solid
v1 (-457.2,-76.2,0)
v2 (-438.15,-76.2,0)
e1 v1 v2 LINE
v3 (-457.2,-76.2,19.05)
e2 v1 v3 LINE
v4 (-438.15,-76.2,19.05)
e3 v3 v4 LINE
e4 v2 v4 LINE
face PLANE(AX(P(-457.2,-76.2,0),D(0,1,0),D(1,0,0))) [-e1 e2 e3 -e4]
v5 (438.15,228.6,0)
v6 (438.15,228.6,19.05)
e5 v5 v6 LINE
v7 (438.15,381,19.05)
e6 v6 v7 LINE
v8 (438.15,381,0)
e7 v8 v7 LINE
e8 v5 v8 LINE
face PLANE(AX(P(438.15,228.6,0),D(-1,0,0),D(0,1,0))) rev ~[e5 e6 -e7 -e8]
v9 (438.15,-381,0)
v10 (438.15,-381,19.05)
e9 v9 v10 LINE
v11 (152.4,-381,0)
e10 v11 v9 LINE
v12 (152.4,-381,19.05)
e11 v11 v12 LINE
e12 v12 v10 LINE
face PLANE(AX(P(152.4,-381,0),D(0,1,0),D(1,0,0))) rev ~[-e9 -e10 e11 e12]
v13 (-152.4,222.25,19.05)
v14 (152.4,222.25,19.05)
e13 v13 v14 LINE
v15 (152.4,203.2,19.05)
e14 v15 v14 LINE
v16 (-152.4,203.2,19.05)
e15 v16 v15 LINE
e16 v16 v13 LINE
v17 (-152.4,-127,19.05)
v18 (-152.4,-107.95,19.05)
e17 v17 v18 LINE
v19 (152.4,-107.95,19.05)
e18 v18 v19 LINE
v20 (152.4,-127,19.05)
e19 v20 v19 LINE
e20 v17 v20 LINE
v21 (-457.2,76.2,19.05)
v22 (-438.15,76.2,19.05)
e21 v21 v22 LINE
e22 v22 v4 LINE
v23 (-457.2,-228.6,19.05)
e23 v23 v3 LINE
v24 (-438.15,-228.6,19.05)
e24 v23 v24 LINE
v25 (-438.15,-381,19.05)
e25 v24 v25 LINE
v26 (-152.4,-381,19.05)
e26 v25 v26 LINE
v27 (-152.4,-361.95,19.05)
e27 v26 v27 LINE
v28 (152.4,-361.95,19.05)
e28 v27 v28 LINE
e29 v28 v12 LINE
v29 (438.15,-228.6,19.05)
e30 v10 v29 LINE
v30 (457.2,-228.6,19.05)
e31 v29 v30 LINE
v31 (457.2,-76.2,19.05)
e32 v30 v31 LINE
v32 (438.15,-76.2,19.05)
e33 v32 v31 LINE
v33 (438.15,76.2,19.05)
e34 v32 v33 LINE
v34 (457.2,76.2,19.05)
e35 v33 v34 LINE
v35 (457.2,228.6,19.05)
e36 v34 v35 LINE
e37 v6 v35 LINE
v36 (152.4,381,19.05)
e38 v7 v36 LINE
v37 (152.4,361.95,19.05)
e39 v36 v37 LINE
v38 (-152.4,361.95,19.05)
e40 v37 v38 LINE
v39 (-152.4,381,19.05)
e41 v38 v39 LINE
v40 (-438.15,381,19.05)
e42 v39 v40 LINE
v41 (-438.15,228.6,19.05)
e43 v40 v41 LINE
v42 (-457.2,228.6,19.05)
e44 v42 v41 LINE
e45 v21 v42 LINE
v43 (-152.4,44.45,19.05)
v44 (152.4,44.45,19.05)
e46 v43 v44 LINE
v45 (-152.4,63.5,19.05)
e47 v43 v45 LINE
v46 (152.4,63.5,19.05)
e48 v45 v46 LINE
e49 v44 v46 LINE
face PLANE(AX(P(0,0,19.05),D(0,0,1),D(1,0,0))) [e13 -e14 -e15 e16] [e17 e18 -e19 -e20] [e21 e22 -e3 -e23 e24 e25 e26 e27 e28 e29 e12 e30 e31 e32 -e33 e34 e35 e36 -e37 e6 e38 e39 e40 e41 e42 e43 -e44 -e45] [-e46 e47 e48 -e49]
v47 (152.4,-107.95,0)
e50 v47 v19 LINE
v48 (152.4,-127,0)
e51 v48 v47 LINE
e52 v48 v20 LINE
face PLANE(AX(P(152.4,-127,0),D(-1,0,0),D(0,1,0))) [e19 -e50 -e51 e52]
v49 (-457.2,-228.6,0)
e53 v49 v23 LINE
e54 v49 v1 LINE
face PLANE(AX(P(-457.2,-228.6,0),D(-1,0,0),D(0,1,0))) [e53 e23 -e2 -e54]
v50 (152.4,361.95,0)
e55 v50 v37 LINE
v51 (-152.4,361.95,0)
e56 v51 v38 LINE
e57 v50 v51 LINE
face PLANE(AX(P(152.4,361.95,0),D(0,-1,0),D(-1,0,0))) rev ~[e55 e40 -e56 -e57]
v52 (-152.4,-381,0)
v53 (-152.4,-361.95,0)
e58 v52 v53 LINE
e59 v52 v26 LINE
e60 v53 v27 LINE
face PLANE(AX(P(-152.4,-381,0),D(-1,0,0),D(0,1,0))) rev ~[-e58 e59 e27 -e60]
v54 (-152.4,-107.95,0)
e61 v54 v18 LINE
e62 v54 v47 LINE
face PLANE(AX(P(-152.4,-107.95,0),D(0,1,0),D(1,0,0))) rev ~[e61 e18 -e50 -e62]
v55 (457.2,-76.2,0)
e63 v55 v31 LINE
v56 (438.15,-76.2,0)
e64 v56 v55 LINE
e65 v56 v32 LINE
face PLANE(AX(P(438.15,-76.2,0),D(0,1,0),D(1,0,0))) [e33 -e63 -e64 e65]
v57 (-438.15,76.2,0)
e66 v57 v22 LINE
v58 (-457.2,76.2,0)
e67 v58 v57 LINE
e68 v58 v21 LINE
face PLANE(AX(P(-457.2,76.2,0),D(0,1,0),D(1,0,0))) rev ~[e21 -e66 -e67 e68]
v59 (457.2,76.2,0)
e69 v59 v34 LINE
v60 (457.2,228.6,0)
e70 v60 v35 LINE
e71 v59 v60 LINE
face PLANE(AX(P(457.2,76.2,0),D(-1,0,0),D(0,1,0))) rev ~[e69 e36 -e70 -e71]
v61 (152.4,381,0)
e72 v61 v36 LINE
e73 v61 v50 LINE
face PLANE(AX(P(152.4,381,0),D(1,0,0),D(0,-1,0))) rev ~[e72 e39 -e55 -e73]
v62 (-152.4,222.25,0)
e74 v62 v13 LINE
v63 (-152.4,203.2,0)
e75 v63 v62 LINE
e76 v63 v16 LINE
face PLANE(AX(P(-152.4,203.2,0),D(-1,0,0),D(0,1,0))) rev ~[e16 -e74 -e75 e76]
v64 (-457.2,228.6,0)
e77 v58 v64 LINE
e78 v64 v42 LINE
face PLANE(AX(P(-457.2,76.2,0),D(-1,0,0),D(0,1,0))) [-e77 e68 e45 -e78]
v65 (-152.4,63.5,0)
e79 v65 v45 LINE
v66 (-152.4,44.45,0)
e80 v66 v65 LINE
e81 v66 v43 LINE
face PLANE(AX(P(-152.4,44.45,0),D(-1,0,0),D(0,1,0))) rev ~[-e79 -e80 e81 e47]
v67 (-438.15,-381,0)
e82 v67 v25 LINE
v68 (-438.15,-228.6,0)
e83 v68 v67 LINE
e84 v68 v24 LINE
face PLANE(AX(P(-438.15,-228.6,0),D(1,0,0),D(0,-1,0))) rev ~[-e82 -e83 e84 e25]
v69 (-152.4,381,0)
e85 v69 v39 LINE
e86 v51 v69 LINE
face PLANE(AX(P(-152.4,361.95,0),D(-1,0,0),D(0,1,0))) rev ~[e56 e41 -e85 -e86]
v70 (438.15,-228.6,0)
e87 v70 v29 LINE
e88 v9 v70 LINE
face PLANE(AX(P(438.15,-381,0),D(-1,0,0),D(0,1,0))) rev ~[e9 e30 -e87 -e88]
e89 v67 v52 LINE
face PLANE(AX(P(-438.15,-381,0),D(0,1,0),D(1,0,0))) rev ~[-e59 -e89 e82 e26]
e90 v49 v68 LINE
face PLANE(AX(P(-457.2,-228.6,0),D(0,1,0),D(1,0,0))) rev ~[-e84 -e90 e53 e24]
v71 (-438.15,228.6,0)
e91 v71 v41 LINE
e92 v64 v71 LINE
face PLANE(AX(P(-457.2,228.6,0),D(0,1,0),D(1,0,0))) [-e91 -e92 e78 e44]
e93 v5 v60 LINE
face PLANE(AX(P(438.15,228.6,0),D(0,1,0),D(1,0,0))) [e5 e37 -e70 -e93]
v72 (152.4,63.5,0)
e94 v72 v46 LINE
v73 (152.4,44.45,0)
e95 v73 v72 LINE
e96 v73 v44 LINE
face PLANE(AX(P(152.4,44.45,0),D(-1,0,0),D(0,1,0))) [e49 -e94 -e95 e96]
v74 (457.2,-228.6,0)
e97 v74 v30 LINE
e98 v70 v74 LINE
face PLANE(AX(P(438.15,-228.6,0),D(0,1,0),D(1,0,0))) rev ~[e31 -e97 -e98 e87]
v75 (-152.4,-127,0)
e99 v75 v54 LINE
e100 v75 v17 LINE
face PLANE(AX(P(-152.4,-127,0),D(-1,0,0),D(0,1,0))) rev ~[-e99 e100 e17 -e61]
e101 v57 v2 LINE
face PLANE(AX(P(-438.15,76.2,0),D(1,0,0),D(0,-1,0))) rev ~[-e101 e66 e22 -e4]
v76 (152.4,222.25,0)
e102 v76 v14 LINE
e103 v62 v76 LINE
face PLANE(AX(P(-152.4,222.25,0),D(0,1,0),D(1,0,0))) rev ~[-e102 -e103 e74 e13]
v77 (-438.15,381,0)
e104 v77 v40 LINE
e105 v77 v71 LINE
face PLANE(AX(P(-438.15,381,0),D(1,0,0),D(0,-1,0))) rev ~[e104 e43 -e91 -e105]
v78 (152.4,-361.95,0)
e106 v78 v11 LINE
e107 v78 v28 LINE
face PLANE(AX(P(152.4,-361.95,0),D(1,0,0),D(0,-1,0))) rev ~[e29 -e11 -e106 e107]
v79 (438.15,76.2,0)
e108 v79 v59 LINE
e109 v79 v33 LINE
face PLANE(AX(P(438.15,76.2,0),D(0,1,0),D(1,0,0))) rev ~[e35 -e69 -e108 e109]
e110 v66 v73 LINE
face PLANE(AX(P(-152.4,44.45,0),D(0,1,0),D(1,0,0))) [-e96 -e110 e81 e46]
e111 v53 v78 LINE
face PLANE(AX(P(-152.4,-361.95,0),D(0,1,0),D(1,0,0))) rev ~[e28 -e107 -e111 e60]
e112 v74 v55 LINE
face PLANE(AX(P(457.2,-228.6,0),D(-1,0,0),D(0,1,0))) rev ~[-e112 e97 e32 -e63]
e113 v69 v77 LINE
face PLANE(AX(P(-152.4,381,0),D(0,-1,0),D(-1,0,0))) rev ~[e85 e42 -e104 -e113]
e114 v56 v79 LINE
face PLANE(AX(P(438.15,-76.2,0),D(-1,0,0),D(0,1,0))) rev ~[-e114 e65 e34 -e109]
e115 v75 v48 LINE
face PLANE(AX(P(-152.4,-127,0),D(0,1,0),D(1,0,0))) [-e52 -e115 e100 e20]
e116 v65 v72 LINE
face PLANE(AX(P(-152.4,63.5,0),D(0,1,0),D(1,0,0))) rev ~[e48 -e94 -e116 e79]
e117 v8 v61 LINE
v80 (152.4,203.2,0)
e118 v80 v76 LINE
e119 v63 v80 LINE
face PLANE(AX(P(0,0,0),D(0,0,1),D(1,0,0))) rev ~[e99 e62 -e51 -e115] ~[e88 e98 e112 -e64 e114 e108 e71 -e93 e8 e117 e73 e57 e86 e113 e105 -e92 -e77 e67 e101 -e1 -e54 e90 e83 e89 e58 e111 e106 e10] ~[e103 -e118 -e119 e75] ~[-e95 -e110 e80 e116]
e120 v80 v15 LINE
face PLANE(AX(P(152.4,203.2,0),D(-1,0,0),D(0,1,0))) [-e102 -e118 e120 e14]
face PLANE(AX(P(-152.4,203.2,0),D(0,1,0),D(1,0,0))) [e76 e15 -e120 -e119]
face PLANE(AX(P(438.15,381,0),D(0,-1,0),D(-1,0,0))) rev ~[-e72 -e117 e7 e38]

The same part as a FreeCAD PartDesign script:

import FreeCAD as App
import Part
import Sketcher
from FreeCAD import Vector
Q = App.Units.Quantity


def add_polygon(sketch, points):
    """Adds a closed chain of lines whose ends are joined by coincident constraints."""
    first, n = sketch.GeometryCount, len(points)
    for a, b in zip(points, points[1:] + points[:1]):
        sketch.addGeometry(Part.LineSegment(App.Vector(*a, 0), App.Vector(*b, 0)), False)
    for i in range(n):
        sketch.addConstraint(Sketcher.Constraint("Coincident", first + i, 2, first + (i + 1) % n, 1))

doc = App.newDocument("Part")
body = doc.addObject("PartDesign::Body", "Body")

# Sketch on XY plane
sketch1 = doc.addObject("Sketcher::SketchObject", "Sketch")
body.addObject(sketch1)
sketch1.AttachmentSupport = (doc.XY_Plane, [""])
sketch1.MapMode = "FlatFace"
add_polygon(sketch1, [(-438, -381), (-152, -381), (-152, -362), (152, -362), (152, -381), (438, -381), (438, -229), (457, -229), (457, -76), (438, -76), (438, 76), (457, 76), (457, 229), (438, 229), (438, 381), (152, 381), (152, 362), (-152, 362), (-152, 381), (-438, 381), (-438, 229), (-457, 229), (-457, 76), (-438, 76), (-438, -76), (-457, -76), (-457, -229), (-438, -229)])  # lines 0-27
add_polygon(sketch1, [(152, -127), (-152, -127), (-152, -108), (152, -108)])  # lines 28-31
add_polygon(sketch1, [(152, 44), (-152, 44), (-152, 64), (152, 64)])  # lines 32-35
add_polygon(sketch1, [(152, 203), (-152, 203), (-152, 222), (152, 222)])  # lines 36-39
sketch1.addConstraint([
    Sketcher.Constraint("Horizontal", 0),
    Sketcher.Constraint("Vertical", 1),
    Sketcher.Constraint("Horizontal", 2),
    Sketcher.Constraint("Vertical", 3),
    Sketcher.Constraint("Horizontal", 4),
    Sketcher.Constraint("Vertical", 5),
    Sketcher.Constraint("Horizontal", 6),
    Sketcher.Constraint("Vertical", 7),
    Sketcher.Constraint("Horizontal", 8),
    Sketcher.Constraint("Vertical", 9),
    Sketcher.Constraint("Horizontal", 10),
    Sketcher.Constraint("Vertical", 11),
    Sketcher.Constraint("Horizontal", 12),
    Sketcher.Constraint("Vertical", 13),
    Sketcher.Constraint("Horizontal", 14),
    Sketcher.Constraint("Vertical", 15),
    Sketcher.Constraint("Horizontal", 16),
    Sketcher.Constraint("Vertical", 17),
    Sketcher.Constraint("Horizontal", 18),
    Sketcher.Constraint("Vertical", 19),
    Sketcher.Constraint("Horizontal", 20),
    Sketcher.Constraint("Vertical", 21),
    Sketcher.Constraint("Horizontal", 22),
    Sketcher.Constraint("Vertical", 23),
    Sketcher.Constraint("Horizontal", 24),
    Sketcher.Constraint("Vertical", 25),
    Sketcher.Constraint("Horizontal", 26),
    Sketcher.Constraint("Vertical", 27),
    Sketcher.Constraint("Horizontal", 28),
    Sketcher.Constraint("Vertical", 29),
    Sketcher.Constraint("Horizontal", 30),
    Sketcher.Constraint("Vertical", 31),
    Sketcher.Constraint("Horizontal", 32),
    Sketcher.Constraint("Vertical", 33),
    Sketcher.Constraint("Horizontal", 34),
    Sketcher.Constraint("Vertical", 35),
    Sketcher.Constraint("Horizontal", 36),
    Sketcher.Constraint("Vertical", 37),
    Sketcher.Constraint("Horizontal", 38),
    Sketcher.Constraint("Vertical", 39),
    Sketcher.Constraint("Symmetric", 0, 2, 14, 2, -1, 1),
    Sketcher.Constraint("Symmetric", 2, 2, 16, 2, -1, 1),
    Sketcher.Constraint("Symmetric", 4, 2, 18, 2, -1, 1),
    Sketcher.Constraint("Symmetric", 6, 2, 20, 2, -1, 1),
    Sketcher.Constraint("Symmetric", 8, 2, 22, 2, -1, 1),
    Sketcher.Constraint("Symmetric", 10, 2, 24, 2, -1, 1),
    Sketcher.Constraint("Symmetric", 12, 2, 26, 2, -1, 1),
    Sketcher.Constraint("Symmetric", 0, 2, 3, 2, -2),
    Sketcher.Constraint("Symmetric", 12, 2, 19, 2, -2),
    Sketcher.Constraint("Symmetric", 10, 2, 21, 2, -2),
    Sketcher.Constraint("Vertical", 5, 2, 8, 2),
    Sketcher.Constraint("Vertical", 17, 2, 28, 2),
    Sketcher.Constraint("Vertical", 15, 2, 30, 2),
    Sketcher.Constraint("Vertical", 29, 2, 32, 2),
    Sketcher.Constraint("Vertical", 31, 2, 34, 2),
    Sketcher.Constraint("Vertical", 33, 2, 36, 2),
    Sketcher.Constraint("Vertical", 35, 2, 38, 2),
    Sketcher.Constraint("Equal", 26, 1),
    Sketcher.Constraint("Equal", 5, 7),
    Sketcher.Constraint("Equal", 7, 9),
    Sketcher.Constraint("Equal", 17, 29),
    Sketcher.Constraint("Equal", 31, 33),
    Sketcher.Constraint("Equal", 35, 37),
    Sketcher.Constraint("DistanceX", 2, 1, 2, 2, Q("12 in")),
    Sketcher.Constraint("DistanceY", 5, 1, 5, 2, Q("6 in")),
    Sketcher.Constraint("DistanceX", -1, 1, 6, 2, Q("18 in")),
    Sketcher.Constraint("DistanceY", 28, 2, -1, 1, Q("5 in")),
    Sketcher.Constraint("DistanceY", -1, 1, 36, 2, Q("8 in")),
    Sketcher.Constraint("DistanceY", 29, 2, 32, 2, Q("6 in")),
    Sketcher.Constraint("DistanceX", 0, 1, 0, 2, Q("11.25 in")),
])
pad1 = doc.addObject("PartDesign::Pad", "Pad")
body.addObject(pad1)
pad1.Profile = sketch1
pad1.Length = Q("0.75 in")

doc.recompute()
